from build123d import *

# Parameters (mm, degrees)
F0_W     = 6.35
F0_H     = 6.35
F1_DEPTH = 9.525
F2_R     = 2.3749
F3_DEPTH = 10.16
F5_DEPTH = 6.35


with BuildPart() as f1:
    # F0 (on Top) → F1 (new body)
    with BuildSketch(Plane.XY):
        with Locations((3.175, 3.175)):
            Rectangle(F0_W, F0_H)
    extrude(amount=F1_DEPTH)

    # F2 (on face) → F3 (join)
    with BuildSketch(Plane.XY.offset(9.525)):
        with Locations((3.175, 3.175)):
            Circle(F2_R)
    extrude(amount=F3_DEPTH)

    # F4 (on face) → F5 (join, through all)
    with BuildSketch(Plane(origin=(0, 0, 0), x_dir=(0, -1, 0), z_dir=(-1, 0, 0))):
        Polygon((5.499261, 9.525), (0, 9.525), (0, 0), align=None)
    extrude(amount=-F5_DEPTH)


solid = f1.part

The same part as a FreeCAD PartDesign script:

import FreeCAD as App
import Part
import Sketcher
Q = App.Units.Quantity

doc = App.newDocument("Part")
params = doc.addObject("Spreadsheet::Sheet", "Params")
for row, (alias, value) in enumerate([
    ("sketch1_width", "0.25 in"),
    ("pad1_length", "0.375 in"),
    ("sketch2_diameter", "0.187 in"),
    ("pad2_length", "0.4 in"),
    ("sketch3_height", "0.375 in"),
    ("pad3_length", "0.25 in"),
], start=1):
    params.set(f"A{row}", alias)
    params.set(f"B{row}", "=" + value)
    params.setAlias(f"B{row}", alias)

body = doc.addObject("PartDesign::Body", "Body")

# Sketch on XY plane
sketch1 = body.newObject("Sketcher::SketchObject", "Sketch")
sketch1.AttachmentSupport = (doc.getObject("XY_Plane"), [""])
sketch1.MapMode = "FlatFace"
sketch1.addGeometry(Part.LineSegment(App.Vector(0, 6, 0), App.Vector(0, 0, 0)), False)
sketch1.addGeometry(Part.LineSegment(App.Vector(0, 0, 0), App.Vector(6, 0, 0)), False)
sketch1.addGeometry(Part.LineSegment(App.Vector(6, 0, 0), App.Vector(6, 6, 0)), False)
sketch1.addGeometry(Part.LineSegment(App.Vector(6, 6, 0), App.Vector(0, 6, 0)), False)
sketch1.addConstraint(Sketcher.Constraint("Coincident", 0, 2, 1, 1))
sketch1.addConstraint(Sketcher.Constraint("Coincident", 1, 2, 2, 1))
sketch1.addConstraint(Sketcher.Constraint("Coincident", 2, 2, 3, 1))
sketch1.addConstraint(Sketcher.Constraint("Coincident", 3, 2, 0, 1))
sketch1.addConstraint(Sketcher.Constraint("Vertical", 0))
sketch1.addConstraint(Sketcher.Constraint("Horizontal", 1))
sketch1.addConstraint(Sketcher.Constraint("Vertical", 2))
sketch1.addConstraint(Sketcher.Constraint("Horizontal", 3))
sketch1.addConstraint(Sketcher.Constraint("Coincident", 0, 2, -1, 1))
sketch1.addConstraint(Sketcher.Constraint("Equal", 3, 0))
sketch1.addConstraint(Sketcher.Constraint("DistanceX", 1, 1, 1, 2, Q("0.25 in")))
sketch1.setExpression("Constraints[10]", "Params.sketch1_width")
pad1 = body.newObject("PartDesign::Pad", "Pad")
pad1.Profile = sketch1
pad1.setExpression("Length", "Params.pad1_length")

# Sketch on XY plane
sketch2 = body.newObject("Sketcher::SketchObject", "Sketch001")
sketch2.AttachmentSupport = (doc.getObject("XY_Plane"), [""])
sketch2.MapMode = "FlatFace"
sketch2.AttachmentOffset = App.Placement(App.Vector(0, 0, 0.375 * 25.4), App.Rotation())
sketch2.addGeometry(Part.Circle(App.Vector(3.2, 3.2, 0), App.Vector(0, 0, 1), 2.4), False)
sketch2.addConstraint(Sketcher.Constraint("Diameter", 0, Q("0.187 in")))
sketch2.addConstraint(Sketcher.Constraint("DistanceX", -1, 1, 0, 3, Q("0.125 in")))
sketch2.addConstraint(Sketcher.Constraint("DistanceY", -1, 1, 0, 3, Q("0.125 in")))
sketch2.setExpression("Constraints[0]", "Params.sketch2_diameter")
pad2 = body.newObject("PartDesign::Pad", "Pad001")
pad2.Profile = sketch2
pad2.setExpression("Length", "Params.pad2_length")

# Sketch on YZ plane
sketch3 = body.newObject("Sketcher::SketchObject", "Sketch002")
sketch3.AttachmentSupport = (doc.getObject("YZ_Plane"), [""])
sketch3.MapMode = "FlatFace"
sketch3.addGeometry(Part.LineSegment(App.Vector(-5, 10, 0), App.Vector(0, 10, 0)), False)
sketch3.addGeometry(Part.LineSegment(App.Vector(0, 10, 0), App.Vector(0, 0, 0)), False)
sketch3.addGeometry(Part.LineSegment(App.Vector(0, 0, 0), App.Vector(-5, 10, 0)), False)
sketch3.addConstraint(Sketcher.Constraint("Coincident", 0, 2, 1, 1))
sketch3.addConstraint(Sketcher.Constraint("Coincident", 1, 2, 2, 1))
sketch3.addConstraint(Sketcher.Constraint("Coincident", 2, 2, 0, 1))
sketch3.addConstraint(Sketcher.Constraint("Horizontal", 0))
sketch3.addConstraint(Sketcher.Constraint("Vertical", 1))
sketch3.addConstraint(Sketcher.Constraint("Coincident", 1, 2, -1, 1))
sketch3.addConstraint(Sketcher.Constraint("Angle", 2, Q("119.999999 deg")))
sketch3.addConstraint(Sketcher.Constraint("DistanceY", 1, 2, 1, 1, Q("0.375 in")))
sketch3.setExpression("Constraints[7]", "Params.sketch3_height")
pad3 = body.newObject("PartDesign::Pad", "Pad002")
pad3.Profile = sketch3
pad3.setExpression("Length", "Params.pad3_length")

doc.recompute()
